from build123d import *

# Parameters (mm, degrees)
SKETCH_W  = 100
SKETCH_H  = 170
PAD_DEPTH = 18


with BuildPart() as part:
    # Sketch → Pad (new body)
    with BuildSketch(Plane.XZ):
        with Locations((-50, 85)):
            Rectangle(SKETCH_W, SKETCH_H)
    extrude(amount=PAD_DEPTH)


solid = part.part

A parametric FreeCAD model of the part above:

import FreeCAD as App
import Part
import Sketcher

V = App.Vector

doc = App.newDocument("Part")
body = doc.addObject("PartDesign::Body", "Body")

sketch1 = body.newObject("Sketcher::SketchObject", "Sketch")
sketch1.AttachmentSupport = (doc.getObject("XZ_Plane"), [""])
sketch1.MapMode = "FlatFace"
sketch1.addGeometry([
    Part.LineSegment(V(-100, 170, 0), V(-100, 0, 0)),
    Part.LineSegment(V(-100, 0, 0), V(0, 0, 0)),
    Part.LineSegment(V(0, 0, 0), V(0, 170, 0)),
    Part.LineSegment(V(0, 170, 0), V(-100, 170, 0)),
], False)
sketch1.addConstraint([
    Sketcher.Constraint("Coincident", 0, 2, 1, 1),
    Sketcher.Constraint("Coincident", 1, 2, 2, 1),
    Sketcher.Constraint("Coincident", 2, 2, 3, 1),
    Sketcher.Constraint("Coincident", 3, 2, 0, 1),
    Sketcher.Constraint("Vertical", 0),
    Sketcher.Constraint("Horizontal", 1),
    Sketcher.Constraint("Vertical", 2),
    Sketcher.Constraint("Horizontal", 3),
    Sketcher.Constraint("Coincident", 1, 2, -1, 1),
    Sketcher.Constraint("DistanceX", 1, 1, 1, 2, 100.0),
    Sketcher.Constraint("DistanceY", 0, 2, 0, 1, 170.0),
])
pad1 = body.newObject("PartDesign::Pad", "Pad")
pad1.Profile = sketch1
pad1.Length = 18

doc.recompute()
